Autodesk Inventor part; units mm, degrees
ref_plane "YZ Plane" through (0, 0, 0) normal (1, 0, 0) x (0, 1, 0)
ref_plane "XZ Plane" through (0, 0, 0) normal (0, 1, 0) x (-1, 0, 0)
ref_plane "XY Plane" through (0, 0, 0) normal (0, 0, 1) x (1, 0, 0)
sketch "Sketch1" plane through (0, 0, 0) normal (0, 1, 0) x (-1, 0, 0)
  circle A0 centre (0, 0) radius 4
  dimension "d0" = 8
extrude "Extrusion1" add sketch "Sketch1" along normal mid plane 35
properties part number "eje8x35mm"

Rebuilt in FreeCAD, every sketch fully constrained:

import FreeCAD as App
import Part
import Sketcher
Q = App.Units.Quantity

doc = App.newDocument("Part")
params = doc.addObject("Spreadsheet::Sheet", "Params")
for row, (alias, value) in enumerate([
    ("sketch1_diameter", "8 mm"),
    ("pad1_length", "35 mm"),
], start=1):
    params.set(f"A{row}", alias)
    params.set(f"B{row}", "=" + value)
    params.setAlias(f"B{row}", alias)

body = doc.addObject("PartDesign::Body", "Body")

sketch1 = body.newObject("Sketcher::SketchObject", "Sketch")
sketch1.AttachmentSupport = (doc.getObject("XZ_Plane"), [""])
sketch1.MapMode = "FlatFace"
sketch1.addGeometry(Part.Circle(App.Vector(0, 0, 0), App.Vector(0, 0, 1), 4), False)
sketch1.addConstraint(Sketcher.Constraint("Coincident", 0, 3, -1, 1))
sketch1.addConstraint(Sketcher.Constraint("Diameter", 0, Q("8 mm")))
sketch1.setExpression("Constraints[1]", "Params.sketch1_diameter")
pad1 = body.newObject("PartDesign::Pad", "Pad")
pad1.Profile = sketch1
pad1.setExpression("Length", "Params.pad1_length")
pad1.Midplane = True

doc.recompute()
